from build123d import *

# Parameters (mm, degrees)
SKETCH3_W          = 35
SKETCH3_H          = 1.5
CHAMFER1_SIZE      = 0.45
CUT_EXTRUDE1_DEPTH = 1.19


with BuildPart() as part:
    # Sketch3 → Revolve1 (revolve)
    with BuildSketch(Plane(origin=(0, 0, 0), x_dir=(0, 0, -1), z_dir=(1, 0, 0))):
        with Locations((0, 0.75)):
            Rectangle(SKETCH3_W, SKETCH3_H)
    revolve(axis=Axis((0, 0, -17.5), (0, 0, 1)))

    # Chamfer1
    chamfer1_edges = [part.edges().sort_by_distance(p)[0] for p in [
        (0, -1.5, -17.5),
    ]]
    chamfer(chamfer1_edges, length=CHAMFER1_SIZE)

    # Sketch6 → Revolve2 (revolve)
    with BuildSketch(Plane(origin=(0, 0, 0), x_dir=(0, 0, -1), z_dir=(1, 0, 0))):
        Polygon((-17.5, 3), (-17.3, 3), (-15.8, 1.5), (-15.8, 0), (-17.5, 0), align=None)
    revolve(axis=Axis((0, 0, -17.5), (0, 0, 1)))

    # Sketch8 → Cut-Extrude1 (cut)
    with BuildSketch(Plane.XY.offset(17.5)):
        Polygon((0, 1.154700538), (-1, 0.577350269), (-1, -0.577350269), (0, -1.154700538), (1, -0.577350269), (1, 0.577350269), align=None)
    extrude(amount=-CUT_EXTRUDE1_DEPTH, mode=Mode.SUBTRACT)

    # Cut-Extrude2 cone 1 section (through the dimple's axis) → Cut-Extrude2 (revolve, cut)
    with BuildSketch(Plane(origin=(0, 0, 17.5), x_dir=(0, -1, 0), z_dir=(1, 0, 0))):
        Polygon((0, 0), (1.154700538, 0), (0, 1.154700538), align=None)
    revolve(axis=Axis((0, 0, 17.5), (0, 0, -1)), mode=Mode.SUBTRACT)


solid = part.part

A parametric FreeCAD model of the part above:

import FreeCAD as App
import Part
import Sketcher

V = App.Vector
Q = App.Units.Quantity


def edges_at(feature, points):
    """Names of the edges that pass closest to the given points."""
    edges = feature.Shape.Edges
    near = lambda p: min(range(len(edges)), key=lambda i: edges[i].distToShape(Part.Vertex(*p))[0])
    return sorted({f"Edge{near(p) + 1}" for p in points})


def add_polygon(sketch, points):
    """Adds a closed chain of lines whose ends are joined by coincident constraints."""
    first, n = sketch.GeometryCount, len(points)
    for a, b in zip(points, points[1:] + points[:1]):
        sketch.addGeometry(Part.LineSegment(App.Vector(*a, 0), App.Vector(*b, 0)), False)
    for i in range(n):
        sketch.addConstraint(Sketcher.Constraint("Coincident", first + i, 2, first + (i + 1) % n, 1))

doc = App.newDocument("Part")
params = doc.addObject("Spreadsheet::Sheet", "Params")
for row, (alias, value) in enumerate([
    ("sketch1_height", "35 mm"),
    ("sketch1_width", "1.5 mm"),
    ("revolution_angle", "360 deg"),
    ("chamfer_size", "0.45 mm"),
    ("sketch2_width", "3 mm"),
    ("sketch2_width2", "1.5 mm"),
    ("sketch2_height", "0.2 mm"),
    ("revolution2_angle", "360 deg"),
    ("pocket1_length", "1.19 mm"),
    ("groove_angle", "360 deg"),
], start=1):
    params.set(f"A{row}", alias)
    params.set(f"B{row}", "=" + value)
    params.setAlias(f"B{row}", alias)

body = doc.addObject("PartDesign::Body", "Body")

sketch1 = body.newObject("Sketcher::SketchObject", "Sketch")
sketch1.AttachmentSupport = (doc.getObject("YZ_Plane"), [""])
sketch1.MapMode = "FlatFace"
add_polygon(sketch1, [(1.5, 17.5), (0, 17.5), (0, -17.5), (1.5, -17.5)])
sketch1.addConstraint(Sketcher.Constraint("Horizontal", 0))
sketch1.addConstraint(Sketcher.Constraint("Vertical", 1))
sketch1.addConstraint(Sketcher.Constraint("Horizontal", 2))
sketch1.addConstraint(Sketcher.Constraint("Vertical", 3))
sketch1.addConstraint(Sketcher.Constraint("Symmetric", 0, 2, 1, 2, -1, 1))
sketch1.addConstraint(Sketcher.Constraint("DistanceY", 1, 2, 1, 1, 35.0))
sketch1.addConstraint(Sketcher.Constraint("DistanceX", 0, 2, 0, 1, 1.5))
sketch1.setExpression("Constraints[9]", "Params.sketch1_height")
sketch1.setExpression("Constraints[10]", "Params.sketch1_width")
revolution = body.newObject("PartDesign::Revolution", "Revolution")
revolution.Profile = sketch1
revolution.ReferenceAxis = (sketch1, ["V_Axis"])
revolution.setExpression("Angle", "Params.revolution_angle")
doc.recompute()

chamfer = body.newObject("PartDesign::Chamfer", "Chamfer")
chamfer.Base = (revolution, edges_at(revolution, [(0, -1.5, -17.5)]))
chamfer.setExpression("Size", "Params.chamfer_size")

sketch2 = body.newObject("Sketcher::SketchObject", "Sketch001")
sketch2.AttachmentSupport = (doc.getObject("YZ_Plane"), [""])
sketch2.MapMode = "FlatFace"
add_polygon(sketch2, [(3, 17.3), (3, 17.5), (0, 17.5), (0, 15.8), (1.5, 15.8)])
sketch2.addConstraint(Sketcher.Constraint("Vertical", 0))
sketch2.addConstraint(Sketcher.Constraint("Horizontal", 1))
sketch2.addConstraint(Sketcher.Constraint("Vertical", 2))
sketch2.addConstraint(Sketcher.Constraint("Horizontal", 3))
sketch2.addConstraint(Sketcher.Constraint("PointOnObject", 1, 2, -2))
sketch2.addConstraint(Sketcher.Constraint("DistanceX", 1, 2, 1, 1, 3.0))
sketch2.addConstraint(Sketcher.Constraint("Angle", 4, Q("45 deg")))
sketch2.addConstraint(Sketcher.Constraint("DistanceX", 3, 1, 3, 2, 1.5))
sketch2.addConstraint(Sketcher.Constraint("DistanceY", 0, 1, 0, 2, 0.2))
sketch2.addConstraint(Sketcher.Constraint("DistanceY", -1, 1, 0, 2, 17.5))
sketch2.setExpression("Constraints[10]", "Params.sketch2_width")
sketch2.setExpression("Constraints[12]", "Params.sketch2_width2")
sketch2.setExpression("Constraints[13]", "Params.sketch2_height")
revolution2 = body.newObject("PartDesign::Revolution", "Revolution001")
revolution2.Profile = sketch2
revolution2.ReferenceAxis = (sketch2, ["V_Axis"])
revolution2.setExpression("Angle", "Params.revolution2_angle")

sketch3 = body.newObject("Sketcher::SketchObject", "Sketch002")
sketch3.AttachmentSupport = (doc.getObject("XY_Plane"), [""])
sketch3.MapMode = "FlatFace"
sketch3.AttachmentOffset = App.Placement(V(0, 0, 17.5), App.Rotation())
add_polygon(sketch3, [(0, 1.2), (-1, 0.6), (-1, -0.6), (0, -1.2), (1, -0.6), (1, 0.6)])
sketch3.addConstraint(Sketcher.Constraint("Vertical", 1))
sketch3.addConstraint(Sketcher.Constraint("Vertical", 4))
sketch3.addConstraint(Sketcher.Constraint("Symmetric", 0, 2, 3, 2, -1, 1))
sketch3.addConstraint(Sketcher.Constraint("Symmetric", 2, 2, 5, 2, -1, 1))
sketch3.addConstraint(Sketcher.Constraint("PointOnObject", 2, 2, -2))
sketch3.addConstraint(Sketcher.Constraint("Parallel", 2, 5))
sketch3.addConstraint(Sketcher.Constraint("Horizontal", 1, 2, 3, 2))
sketch3.addConstraint(Sketcher.Constraint("Angle", 0, Q("-150 deg")))
sketch3.addConstraint(Sketcher.Constraint("DistanceX", 0, 2, -1, 1, 1.0))
sketch3.addConstraint(Sketcher.Constraint("DistanceY", 1, 2, 1, 1, 1.154701))
pocket1 = body.newObject("PartDesign::Pocket", "Pocket")
pocket1.Profile = sketch3
pocket1.setExpression("Length", "Params.pocket1_length")

sketch4 = body.newObject("Sketcher::SketchObject", "Sketch003")
sketch4.AttachmentSupport = (doc.getObject("YZ_Plane"), [""])
sketch4.MapMode = "FlatFace"
add_polygon(sketch4, [(0, 17.5), (-1.2, 17.5), (0, 16.3)])
sketch4.addConstraint(Sketcher.Constraint("Horizontal", 0))
sketch4.addConstraint(Sketcher.Constraint("Vertical", 2))
sketch4.addConstraint(Sketcher.Constraint("PointOnObject", 1, 2, -2))
sketch4.addConstraint(Sketcher.Constraint("Equal", 0, 2))
sketch4.addConstraint(Sketcher.Constraint("DistanceY", -1, 1, 0, 2, 17.5))
sketch4.addConstraint(Sketcher.Constraint("DistanceX", 0, 2, 0, 1, 1.154701))
groove = body.newObject("PartDesign::Groove", "Groove")
groove.Profile = sketch4
groove.ReferenceAxis = (sketch4, ["V_Axis"])
groove.setExpression("Angle", "Params.groove_angle")

doc.recompute()
